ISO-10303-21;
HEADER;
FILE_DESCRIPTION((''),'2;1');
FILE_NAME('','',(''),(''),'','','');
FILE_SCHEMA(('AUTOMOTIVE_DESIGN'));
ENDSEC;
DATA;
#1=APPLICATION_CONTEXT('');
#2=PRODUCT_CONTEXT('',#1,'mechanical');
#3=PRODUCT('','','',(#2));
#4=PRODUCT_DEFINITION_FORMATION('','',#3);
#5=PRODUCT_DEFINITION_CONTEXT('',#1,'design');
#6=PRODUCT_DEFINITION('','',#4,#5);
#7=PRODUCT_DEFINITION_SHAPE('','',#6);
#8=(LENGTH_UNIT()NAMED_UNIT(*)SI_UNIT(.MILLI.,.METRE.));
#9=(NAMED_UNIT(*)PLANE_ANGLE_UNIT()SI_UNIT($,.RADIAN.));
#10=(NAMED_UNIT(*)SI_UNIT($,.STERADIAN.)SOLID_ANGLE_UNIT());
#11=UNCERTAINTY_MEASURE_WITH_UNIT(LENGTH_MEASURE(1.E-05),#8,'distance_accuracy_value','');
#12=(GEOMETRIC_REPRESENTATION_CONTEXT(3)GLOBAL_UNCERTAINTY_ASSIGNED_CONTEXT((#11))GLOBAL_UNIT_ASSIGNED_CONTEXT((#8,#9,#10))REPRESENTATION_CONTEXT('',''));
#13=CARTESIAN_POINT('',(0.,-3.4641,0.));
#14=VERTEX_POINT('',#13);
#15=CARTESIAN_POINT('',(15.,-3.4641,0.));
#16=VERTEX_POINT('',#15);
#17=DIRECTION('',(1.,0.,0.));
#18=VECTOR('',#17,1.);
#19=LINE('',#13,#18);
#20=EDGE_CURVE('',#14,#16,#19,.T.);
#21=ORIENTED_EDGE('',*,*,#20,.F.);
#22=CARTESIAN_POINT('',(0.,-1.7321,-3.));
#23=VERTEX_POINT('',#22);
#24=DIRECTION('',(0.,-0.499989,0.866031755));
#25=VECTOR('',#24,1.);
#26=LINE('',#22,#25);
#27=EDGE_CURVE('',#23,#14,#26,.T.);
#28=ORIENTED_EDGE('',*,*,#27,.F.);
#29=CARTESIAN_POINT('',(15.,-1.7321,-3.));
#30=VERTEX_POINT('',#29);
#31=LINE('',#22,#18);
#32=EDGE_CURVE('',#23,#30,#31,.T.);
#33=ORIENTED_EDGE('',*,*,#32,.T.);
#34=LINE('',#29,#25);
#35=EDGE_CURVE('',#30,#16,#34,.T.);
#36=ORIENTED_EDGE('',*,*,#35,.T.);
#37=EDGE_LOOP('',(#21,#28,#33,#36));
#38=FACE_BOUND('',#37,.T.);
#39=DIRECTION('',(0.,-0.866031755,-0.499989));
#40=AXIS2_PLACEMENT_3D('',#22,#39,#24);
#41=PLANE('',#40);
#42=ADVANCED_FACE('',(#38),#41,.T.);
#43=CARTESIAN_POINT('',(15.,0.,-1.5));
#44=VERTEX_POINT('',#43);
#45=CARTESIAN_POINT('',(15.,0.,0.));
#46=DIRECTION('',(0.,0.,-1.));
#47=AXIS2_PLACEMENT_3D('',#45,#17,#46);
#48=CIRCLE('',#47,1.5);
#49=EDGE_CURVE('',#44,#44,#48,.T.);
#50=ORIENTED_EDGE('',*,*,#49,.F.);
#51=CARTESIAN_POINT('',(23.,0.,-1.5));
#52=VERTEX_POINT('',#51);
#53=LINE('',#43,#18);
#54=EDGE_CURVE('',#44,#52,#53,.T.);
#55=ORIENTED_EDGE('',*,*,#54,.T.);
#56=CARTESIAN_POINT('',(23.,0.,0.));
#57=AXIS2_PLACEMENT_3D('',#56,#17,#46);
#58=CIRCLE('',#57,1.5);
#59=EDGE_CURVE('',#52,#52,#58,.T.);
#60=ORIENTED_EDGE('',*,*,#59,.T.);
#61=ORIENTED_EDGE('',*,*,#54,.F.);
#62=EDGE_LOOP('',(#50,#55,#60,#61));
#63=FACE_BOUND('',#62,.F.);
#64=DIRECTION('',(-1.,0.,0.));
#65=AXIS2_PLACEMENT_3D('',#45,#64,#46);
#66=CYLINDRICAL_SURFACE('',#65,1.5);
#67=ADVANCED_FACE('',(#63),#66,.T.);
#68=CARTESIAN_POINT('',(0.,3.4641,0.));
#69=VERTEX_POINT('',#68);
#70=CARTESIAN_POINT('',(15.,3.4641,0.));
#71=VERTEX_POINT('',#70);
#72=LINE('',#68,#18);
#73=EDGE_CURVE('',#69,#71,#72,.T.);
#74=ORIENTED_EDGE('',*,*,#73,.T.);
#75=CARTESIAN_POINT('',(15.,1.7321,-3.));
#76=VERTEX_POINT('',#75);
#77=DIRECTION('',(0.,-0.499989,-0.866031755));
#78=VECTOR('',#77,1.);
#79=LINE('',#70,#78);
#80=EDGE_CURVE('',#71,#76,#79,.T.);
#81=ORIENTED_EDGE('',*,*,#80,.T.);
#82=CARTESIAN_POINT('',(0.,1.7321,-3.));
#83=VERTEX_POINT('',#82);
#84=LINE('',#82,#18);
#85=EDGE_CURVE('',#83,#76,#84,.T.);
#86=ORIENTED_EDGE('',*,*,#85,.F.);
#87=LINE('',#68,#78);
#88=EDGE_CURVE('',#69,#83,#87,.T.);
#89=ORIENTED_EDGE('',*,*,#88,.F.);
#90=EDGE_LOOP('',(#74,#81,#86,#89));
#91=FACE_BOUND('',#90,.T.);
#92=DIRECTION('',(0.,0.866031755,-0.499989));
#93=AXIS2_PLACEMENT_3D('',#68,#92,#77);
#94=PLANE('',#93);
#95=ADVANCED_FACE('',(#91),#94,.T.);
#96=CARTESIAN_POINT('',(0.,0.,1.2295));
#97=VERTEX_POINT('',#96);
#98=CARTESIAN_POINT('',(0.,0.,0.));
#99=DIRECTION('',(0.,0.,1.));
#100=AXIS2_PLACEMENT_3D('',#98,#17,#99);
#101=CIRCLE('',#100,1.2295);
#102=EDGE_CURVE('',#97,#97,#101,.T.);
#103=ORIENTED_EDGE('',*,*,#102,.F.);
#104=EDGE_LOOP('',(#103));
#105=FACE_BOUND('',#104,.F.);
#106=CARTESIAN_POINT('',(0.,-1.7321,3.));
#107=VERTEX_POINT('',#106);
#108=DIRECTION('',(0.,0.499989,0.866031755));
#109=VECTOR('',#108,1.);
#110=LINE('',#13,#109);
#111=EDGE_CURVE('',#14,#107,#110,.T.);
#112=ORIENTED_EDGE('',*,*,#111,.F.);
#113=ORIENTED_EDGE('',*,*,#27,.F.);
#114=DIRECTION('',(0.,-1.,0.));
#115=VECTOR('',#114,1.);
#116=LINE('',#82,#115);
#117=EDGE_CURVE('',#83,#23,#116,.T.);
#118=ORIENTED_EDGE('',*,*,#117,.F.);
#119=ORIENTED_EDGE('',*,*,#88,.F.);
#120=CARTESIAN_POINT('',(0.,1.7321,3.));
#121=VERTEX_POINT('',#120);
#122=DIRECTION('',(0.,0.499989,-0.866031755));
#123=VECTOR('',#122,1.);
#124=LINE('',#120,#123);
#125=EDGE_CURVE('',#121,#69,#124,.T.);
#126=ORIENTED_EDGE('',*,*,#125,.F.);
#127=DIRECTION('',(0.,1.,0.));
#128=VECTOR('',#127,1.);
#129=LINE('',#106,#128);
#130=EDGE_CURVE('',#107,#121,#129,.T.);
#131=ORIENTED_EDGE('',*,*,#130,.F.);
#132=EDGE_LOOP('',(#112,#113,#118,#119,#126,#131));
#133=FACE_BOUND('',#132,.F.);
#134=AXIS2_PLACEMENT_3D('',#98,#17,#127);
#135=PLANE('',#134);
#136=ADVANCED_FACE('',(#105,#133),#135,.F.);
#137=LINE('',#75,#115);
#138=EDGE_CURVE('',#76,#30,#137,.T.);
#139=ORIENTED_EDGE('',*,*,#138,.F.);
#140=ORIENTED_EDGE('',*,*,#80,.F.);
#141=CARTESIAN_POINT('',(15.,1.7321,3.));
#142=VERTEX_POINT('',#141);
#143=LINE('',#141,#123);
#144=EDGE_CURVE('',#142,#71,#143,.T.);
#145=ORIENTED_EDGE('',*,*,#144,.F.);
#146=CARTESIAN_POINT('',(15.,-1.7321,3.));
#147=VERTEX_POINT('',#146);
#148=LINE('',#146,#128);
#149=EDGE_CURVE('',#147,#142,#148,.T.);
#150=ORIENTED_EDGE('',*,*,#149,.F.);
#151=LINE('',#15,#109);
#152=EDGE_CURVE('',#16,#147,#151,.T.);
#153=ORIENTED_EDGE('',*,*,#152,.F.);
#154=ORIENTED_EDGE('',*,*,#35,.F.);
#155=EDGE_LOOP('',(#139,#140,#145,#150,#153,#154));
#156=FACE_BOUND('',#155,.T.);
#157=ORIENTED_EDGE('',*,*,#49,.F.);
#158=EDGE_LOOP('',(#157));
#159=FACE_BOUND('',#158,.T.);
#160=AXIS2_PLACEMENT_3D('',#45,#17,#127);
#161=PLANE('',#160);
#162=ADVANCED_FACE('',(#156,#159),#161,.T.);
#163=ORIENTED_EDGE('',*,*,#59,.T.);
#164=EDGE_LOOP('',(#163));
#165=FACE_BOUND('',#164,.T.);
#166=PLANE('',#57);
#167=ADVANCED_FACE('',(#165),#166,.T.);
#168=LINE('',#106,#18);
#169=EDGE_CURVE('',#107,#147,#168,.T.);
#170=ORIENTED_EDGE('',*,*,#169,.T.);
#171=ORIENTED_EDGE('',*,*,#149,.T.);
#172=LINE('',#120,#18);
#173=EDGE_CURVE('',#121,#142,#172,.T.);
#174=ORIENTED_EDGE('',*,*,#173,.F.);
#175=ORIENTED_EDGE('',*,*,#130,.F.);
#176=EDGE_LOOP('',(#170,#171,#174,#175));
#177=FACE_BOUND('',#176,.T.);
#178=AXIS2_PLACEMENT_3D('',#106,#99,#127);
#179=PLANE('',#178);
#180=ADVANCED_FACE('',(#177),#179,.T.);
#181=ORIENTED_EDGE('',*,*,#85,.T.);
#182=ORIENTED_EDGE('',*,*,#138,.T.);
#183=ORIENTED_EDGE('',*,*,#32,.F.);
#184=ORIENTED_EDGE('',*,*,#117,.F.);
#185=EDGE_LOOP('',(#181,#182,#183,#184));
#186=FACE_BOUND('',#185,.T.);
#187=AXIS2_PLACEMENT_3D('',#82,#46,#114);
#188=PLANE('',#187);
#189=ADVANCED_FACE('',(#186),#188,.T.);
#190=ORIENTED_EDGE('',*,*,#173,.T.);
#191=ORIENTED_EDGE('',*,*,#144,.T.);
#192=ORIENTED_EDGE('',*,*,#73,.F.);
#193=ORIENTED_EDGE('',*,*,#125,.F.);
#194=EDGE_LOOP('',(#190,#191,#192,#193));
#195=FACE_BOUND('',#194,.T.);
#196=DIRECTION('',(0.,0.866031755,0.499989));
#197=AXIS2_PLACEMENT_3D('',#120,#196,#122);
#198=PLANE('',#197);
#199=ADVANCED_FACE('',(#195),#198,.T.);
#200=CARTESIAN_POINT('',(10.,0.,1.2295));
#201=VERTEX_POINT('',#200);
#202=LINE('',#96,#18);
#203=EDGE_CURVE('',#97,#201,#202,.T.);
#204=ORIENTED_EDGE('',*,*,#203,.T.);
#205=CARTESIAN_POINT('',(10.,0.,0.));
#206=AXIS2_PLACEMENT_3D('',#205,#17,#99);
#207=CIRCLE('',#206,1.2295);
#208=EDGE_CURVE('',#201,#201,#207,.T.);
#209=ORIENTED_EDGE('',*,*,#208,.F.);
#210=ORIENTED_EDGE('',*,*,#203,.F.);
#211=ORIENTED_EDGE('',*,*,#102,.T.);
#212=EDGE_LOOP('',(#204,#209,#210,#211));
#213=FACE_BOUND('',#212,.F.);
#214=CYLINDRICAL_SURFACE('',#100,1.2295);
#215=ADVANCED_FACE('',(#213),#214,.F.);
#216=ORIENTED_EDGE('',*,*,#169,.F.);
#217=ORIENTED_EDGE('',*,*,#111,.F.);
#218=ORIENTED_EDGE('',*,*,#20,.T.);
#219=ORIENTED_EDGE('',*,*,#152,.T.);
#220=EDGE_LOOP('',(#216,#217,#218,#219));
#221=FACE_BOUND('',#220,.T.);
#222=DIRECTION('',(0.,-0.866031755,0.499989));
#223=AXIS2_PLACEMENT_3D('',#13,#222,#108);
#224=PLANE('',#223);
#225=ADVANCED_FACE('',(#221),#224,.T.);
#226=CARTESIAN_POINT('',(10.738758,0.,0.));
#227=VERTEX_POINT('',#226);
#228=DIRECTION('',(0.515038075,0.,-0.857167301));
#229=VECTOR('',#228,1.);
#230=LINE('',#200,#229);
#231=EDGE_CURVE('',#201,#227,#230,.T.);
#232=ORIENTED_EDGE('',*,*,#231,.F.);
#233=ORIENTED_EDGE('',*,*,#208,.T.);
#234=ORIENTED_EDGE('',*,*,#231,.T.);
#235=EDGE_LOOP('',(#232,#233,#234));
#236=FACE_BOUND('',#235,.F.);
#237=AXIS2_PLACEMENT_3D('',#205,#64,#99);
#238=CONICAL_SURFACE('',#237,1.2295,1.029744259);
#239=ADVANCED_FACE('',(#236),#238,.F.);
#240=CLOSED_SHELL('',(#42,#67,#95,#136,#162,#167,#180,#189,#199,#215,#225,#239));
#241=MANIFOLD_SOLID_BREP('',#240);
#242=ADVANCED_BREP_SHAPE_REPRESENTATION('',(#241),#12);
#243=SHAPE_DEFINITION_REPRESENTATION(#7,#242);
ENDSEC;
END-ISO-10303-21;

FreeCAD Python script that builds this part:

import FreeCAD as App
import Part
import Sketcher
Q = App.Units.Quantity


def add_polygon(sketch, points):
    """Adds a closed chain of lines whose ends are joined by coincident constraints."""
    first, n = sketch.GeometryCount, len(points)
    for a, b in zip(points, points[1:] + points[:1]):
        sketch.addGeometry(Part.LineSegment(App.Vector(*a, 0), App.Vector(*b, 0)), False)
    for i in range(n):
        sketch.addConstraint(Sketcher.Constraint("Coincident", first + i, 2, first + (i + 1) % n, 1))

doc = App.newDocument("Part")
body = doc.addObject("PartDesign::Body", "Body")

sketch1 = body.newObject("Sketcher::SketchObject", "Sketch")
sketch1.AttachmentSupport = (doc.getObject("YZ_Plane"), [""])
sketch1.MapMode = "FlatFace"
add_polygon(sketch1, [(-1.7, -3), (1.7, -3), (3.5, 0), (1.7, 3), (-1.7, 3), (-3.5, 0)])
sketch1.addConstraint(Sketcher.Constraint("Horizontal", 0))
sketch1.addConstraint(Sketcher.Constraint("Horizontal", 3))
sketch1.addConstraint(Sketcher.Constraint("Symmetric", 0, 2, 3, 2, -1, 1))
sketch1.addConstraint(Sketcher.Constraint("Symmetric", 1, 2, 4, 2, -1, 1))
sketch1.addConstraint(Sketcher.Constraint("PointOnObject", 1, 2, -1))
sketch1.addConstraint(Sketcher.Constraint("Parallel", 2, 5))
sketch1.addConstraint(Sketcher.Constraint("Vertical", 0, 2, 2, 2))
sketch1.addConstraint(Sketcher.Constraint("DistanceY", 0, 2, 2, 2, Q("6 mm")))
sketch1.addConstraint(Sketcher.Constraint("Angle", 1, Q("60.0007 deg")))
sketch1.addConstraint(Sketcher.Constraint("DistanceX", 0, 1, 0, 2, Q("3.4642 mm")))
pad1 = body.newObject("PartDesign::Pad", "Pad")
pad1.Profile = sketch1
pad1.Length = 15

sketch2 = body.newObject("Sketcher::SketchObject", "Sketch001")
sketch2.AttachmentSupport = (doc.getObject("YZ_Plane"), [""])
sketch2.MapMode = "FlatFace"
sketch2.AttachmentOffset = App.Placement(App.Vector(0, 0, 15), App.Rotation())
sketch2.addGeometry(Part.Circle(App.Vector(0, 0, 0), App.Vector(0, 0, 1), 1.5), False)
sketch2.addConstraint(Sketcher.Constraint("Coincident", 0, 3, -1, 1))
sketch2.addConstraint(Sketcher.Constraint("Diameter", 0, Q("3 mm")))
pad2 = body.newObject("PartDesign::Pad", "Pad001")
pad2.Profile = sketch2
pad2.Length = 8

sketch3 = body.newObject("Sketcher::SketchObject", "Sketch002")
sketch3.AttachmentSupport = (doc.getObject("YZ_Plane"), [""])
sketch3.MapMode = "FlatFace"
sketch3.addGeometry(Part.Circle(App.Vector(0, 0, 0), App.Vector(0, 0, 1), 1.2), False)
sketch3.addConstraint(Sketcher.Constraint("Coincident", 0, 3, -1, 1))
sketch3.addConstraint(Sketcher.Constraint("Diameter", 0, Q("2.459 mm")))
doc.recompute()
hole = body.newObject("PartDesign::Hole", "Hole")
hole.Profile = sketch3
hole.ThreadType = "None"
hole.Diameter = 2.459
hole.DepthType = "Dimension"
hole.Depth = 10
hole.DrillPoint = "Angled"
hole.DrillPointAngle = 118
hole.Reversed = True

doc.recompute()
